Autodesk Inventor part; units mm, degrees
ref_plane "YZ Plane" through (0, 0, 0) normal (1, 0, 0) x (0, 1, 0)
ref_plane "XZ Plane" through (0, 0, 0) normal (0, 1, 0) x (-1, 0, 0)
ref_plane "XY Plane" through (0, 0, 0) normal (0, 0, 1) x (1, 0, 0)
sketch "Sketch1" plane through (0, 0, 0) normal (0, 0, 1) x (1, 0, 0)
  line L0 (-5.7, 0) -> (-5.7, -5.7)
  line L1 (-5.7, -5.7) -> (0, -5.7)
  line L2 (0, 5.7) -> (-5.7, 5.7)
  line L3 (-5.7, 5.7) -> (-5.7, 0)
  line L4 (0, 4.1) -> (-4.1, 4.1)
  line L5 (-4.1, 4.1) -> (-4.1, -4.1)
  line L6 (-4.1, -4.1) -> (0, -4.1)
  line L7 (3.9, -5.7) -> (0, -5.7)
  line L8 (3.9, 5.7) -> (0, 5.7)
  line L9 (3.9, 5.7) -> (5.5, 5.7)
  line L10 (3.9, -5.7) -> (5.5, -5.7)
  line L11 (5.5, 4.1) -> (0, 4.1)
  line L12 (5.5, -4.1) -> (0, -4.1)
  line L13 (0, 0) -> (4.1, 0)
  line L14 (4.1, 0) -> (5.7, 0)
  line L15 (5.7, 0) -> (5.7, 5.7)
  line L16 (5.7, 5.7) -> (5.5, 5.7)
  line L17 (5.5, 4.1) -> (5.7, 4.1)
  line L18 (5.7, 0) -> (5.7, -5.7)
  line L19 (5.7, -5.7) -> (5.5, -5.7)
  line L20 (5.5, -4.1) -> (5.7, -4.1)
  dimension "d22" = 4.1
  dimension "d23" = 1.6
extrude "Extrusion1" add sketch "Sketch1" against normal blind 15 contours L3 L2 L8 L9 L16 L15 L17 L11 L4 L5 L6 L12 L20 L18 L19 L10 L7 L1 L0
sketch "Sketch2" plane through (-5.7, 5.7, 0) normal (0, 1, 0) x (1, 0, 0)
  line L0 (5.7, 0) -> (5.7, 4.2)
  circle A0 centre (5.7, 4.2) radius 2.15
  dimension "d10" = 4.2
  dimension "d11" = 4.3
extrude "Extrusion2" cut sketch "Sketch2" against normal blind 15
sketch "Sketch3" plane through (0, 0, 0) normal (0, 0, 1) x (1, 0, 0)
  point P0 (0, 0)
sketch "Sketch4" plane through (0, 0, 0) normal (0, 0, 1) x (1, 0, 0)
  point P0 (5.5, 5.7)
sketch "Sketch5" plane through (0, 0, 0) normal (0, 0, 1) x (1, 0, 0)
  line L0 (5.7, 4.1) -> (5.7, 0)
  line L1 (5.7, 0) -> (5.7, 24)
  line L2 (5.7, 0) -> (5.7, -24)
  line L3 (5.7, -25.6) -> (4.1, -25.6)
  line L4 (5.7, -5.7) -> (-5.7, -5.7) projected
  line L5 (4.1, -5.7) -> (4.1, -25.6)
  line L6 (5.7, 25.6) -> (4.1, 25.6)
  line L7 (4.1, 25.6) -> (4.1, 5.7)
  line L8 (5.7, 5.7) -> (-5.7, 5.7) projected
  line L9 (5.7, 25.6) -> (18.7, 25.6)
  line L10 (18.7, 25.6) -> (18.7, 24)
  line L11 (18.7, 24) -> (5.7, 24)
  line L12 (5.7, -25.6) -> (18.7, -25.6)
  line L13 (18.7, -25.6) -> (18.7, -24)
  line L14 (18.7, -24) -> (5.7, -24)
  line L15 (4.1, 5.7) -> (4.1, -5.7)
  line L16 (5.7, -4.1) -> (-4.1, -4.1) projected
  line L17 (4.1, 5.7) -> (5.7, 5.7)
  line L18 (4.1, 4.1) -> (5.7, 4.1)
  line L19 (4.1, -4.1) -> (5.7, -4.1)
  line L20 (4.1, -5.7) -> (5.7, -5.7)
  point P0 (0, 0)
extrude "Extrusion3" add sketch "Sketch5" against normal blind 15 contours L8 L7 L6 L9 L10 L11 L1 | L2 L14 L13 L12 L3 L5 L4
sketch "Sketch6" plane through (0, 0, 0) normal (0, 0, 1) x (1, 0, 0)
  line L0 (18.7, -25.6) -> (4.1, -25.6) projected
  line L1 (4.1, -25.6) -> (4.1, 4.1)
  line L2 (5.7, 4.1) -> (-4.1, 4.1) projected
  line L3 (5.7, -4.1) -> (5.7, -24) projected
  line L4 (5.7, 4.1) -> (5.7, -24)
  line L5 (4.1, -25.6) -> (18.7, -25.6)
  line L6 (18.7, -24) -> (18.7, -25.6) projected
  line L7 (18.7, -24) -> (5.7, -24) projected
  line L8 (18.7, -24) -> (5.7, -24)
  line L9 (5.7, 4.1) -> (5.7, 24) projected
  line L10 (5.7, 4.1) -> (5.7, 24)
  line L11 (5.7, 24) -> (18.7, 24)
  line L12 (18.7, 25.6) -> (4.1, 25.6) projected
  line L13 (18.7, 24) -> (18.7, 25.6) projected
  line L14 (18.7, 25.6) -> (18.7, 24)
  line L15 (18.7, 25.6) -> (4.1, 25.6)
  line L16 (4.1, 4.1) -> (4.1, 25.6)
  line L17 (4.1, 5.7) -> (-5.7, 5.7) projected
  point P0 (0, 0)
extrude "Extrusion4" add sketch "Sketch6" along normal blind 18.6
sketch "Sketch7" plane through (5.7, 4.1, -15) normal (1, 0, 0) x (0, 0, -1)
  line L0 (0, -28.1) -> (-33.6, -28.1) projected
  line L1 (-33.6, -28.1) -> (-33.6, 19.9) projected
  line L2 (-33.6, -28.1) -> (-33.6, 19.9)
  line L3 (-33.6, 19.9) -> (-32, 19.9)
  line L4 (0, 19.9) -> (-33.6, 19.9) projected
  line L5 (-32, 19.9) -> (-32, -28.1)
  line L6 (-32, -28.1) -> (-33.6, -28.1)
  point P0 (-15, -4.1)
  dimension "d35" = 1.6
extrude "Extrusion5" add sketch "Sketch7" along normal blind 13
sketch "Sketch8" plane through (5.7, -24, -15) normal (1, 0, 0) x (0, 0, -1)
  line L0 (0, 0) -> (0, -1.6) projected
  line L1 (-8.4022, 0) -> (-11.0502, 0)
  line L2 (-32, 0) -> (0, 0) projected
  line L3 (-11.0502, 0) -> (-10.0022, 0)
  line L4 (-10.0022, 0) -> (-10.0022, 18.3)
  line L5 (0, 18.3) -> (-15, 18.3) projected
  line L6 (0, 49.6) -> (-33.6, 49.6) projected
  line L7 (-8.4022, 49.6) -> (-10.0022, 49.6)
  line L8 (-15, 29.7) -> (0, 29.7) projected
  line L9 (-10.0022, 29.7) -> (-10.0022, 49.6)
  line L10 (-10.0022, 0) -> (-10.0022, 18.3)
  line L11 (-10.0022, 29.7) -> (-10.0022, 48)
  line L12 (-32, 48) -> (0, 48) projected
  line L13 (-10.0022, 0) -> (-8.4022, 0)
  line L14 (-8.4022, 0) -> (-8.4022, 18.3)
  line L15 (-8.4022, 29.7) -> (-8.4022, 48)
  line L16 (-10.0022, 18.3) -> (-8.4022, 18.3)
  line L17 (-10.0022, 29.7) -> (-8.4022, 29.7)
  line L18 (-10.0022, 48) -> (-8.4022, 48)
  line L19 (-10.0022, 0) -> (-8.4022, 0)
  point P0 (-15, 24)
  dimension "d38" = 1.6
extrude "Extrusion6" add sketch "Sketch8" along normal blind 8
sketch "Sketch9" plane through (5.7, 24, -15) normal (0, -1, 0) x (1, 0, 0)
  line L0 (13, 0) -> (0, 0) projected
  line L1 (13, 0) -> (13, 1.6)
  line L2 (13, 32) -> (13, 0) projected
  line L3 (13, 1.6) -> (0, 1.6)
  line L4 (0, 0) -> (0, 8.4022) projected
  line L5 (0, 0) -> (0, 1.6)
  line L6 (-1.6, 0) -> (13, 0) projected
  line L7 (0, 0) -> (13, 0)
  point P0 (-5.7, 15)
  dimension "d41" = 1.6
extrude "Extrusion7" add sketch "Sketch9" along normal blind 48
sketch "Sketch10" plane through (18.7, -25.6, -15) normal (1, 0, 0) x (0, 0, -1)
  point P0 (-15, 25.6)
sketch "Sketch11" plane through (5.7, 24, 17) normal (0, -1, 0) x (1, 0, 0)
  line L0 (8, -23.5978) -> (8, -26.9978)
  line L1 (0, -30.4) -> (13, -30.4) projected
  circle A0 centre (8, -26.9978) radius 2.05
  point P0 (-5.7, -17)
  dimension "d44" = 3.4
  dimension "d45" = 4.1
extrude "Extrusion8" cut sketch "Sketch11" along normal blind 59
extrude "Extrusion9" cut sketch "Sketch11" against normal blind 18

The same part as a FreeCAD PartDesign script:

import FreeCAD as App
import Part
import Sketcher


def add_polygon(sketch, points):
    """Adds a closed chain of lines whose ends are joined by coincident constraints."""
    first, n = sketch.GeometryCount, len(points)
    for a, b in zip(points, points[1:] + points[:1]):
        sketch.addGeometry(Part.LineSegment(App.Vector(*a, 0), App.Vector(*b, 0)), False)
    for i in range(n):
        sketch.addConstraint(Sketcher.Constraint("Coincident", first + i, 2, first + (i + 1) % n, 1))

doc = App.newDocument("Part")
body = doc.addObject("PartDesign::Body", "Body")

# Sketch on XY plane
sketch1 = body.newObject("Sketcher::SketchObject", "Sketch")
sketch1.AttachmentSupport = (doc.getObject("XY_Plane"), [""])
sketch1.MapMode = "FlatFace"
add_polygon(sketch1, [(-5.7, 5.7), (-5.7, -5.7), (5.7, -5.7), (5.7, -4.1), (-4.1, -4.1), (-4.1, 4.1), (5.7, 4.1), (5.7, 5.7)])  # lines 0-7
sketch1.addConstraint([
    Sketcher.Constraint("Vertical", 0),
    Sketcher.Constraint("Horizontal", 1),
    Sketcher.Constraint("Vertical", 2),
    Sketcher.Constraint("Horizontal", 3),
    Sketcher.Constraint("Vertical", 4),
    Sketcher.Constraint("Horizontal", 5),
    Sketcher.Constraint("Vertical", 6),
    Sketcher.Constraint("Horizontal", 7),
    Sketcher.Constraint("Symmetric", 0, 2, 6, 2, -1, 1),
    Sketcher.Constraint("Symmetric", 2, 2, 5, 2, -1),
    Sketcher.Constraint("Equal", 7, 0),
    Sketcher.Constraint("DistanceY", 2, 1, 2, 2, 1.6),
    Sketcher.Constraint("DistanceY", 2, 2, -1, 1, 4.1),
    Sketcher.Constraint("DistanceX", 3, 2, -1, 1, 4.1),
])
pad1 = body.newObject("PartDesign::Pad", "Pad")
pad1.Profile = sketch1
pad1.Length = 15
pad1.Reversed = True

# Sketch on XZ plane
sketch2 = body.newObject("Sketcher::SketchObject", "Sketch001")
sketch2.AttachmentSupport = (doc.getObject("XZ_Plane"), [""])
sketch2.MapMode = "FlatFace"
sketch2.AttachmentOffset = App.Placement(App.Vector(0, 0, -5.7), App.Rotation())
sketch2.addGeometry(Part.Circle(App.Vector(0, -4.2, 0), App.Vector(0, 0, 1), 2.15), False)
sketch2.addConstraint([
    Sketcher.Constraint("PointOnObject", 0, 3, -2),
    Sketcher.Constraint("Diameter", 0, 4.3),
    Sketcher.Constraint("DistanceY", 0, 3, -1, 1, 4.2),
])
pocket1 = body.newObject("PartDesign::Pocket", "Pocket")
pocket1.Profile = sketch2
pocket1.Length = 15
pocket1.Reversed = True

# Sketch on XY plane
sketch3 = body.newObject("Sketcher::SketchObject", "Sketch002")
sketch3.AttachmentSupport = (doc.getObject("XY_Plane"), [""])
sketch3.MapMode = "FlatFace"
add_polygon(sketch3, [(4.1, 5.7), (5.7, 5.7), (5.7, 24), (18.7, 24), (18.7, 25.6), (4.1, 25.6)])  # lines 0-5
add_polygon(sketch3, [(5.7, -24), (5.7, -5.7), (4.1, -5.7), (4.1, -25.6), (18.7, -25.6), (18.7, -24)])  # lines 6-11
sketch3.addConstraint([
    Sketcher.Constraint("Horizontal", 0),
    Sketcher.Constraint("Vertical", 1),
    Sketcher.Constraint("Horizontal", 2),
    Sketcher.Constraint("Vertical", 3),
    Sketcher.Constraint("Horizontal", 4),
    Sketcher.Constraint("Vertical", 5),
    Sketcher.Constraint("Vertical", 6),
    Sketcher.Constraint("Horizontal", 7),
    Sketcher.Constraint("Vertical", 8),
    Sketcher.Constraint("Horizontal", 9),
    Sketcher.Constraint("Vertical", 10),
    Sketcher.Constraint("Horizontal", 11),
    Sketcher.Constraint("Symmetric", 0, 2, 6, 2, -1),
    Sketcher.Constraint("Symmetric", 4, 2, 8, 2, -1),
    Sketcher.Constraint("Symmetric", 2, 2, 10, 2, -1),
    Sketcher.Constraint("Equal", 7, 3),
    Sketcher.Constraint("DistanceX", 2, 1, 2, 2, 13.0),
    Sketcher.Constraint("DistanceX", 0, 1, 0, 2, 1.6),
    Sketcher.Constraint("DistanceY", 1, 1, 1, 2, 18.3),
    Sketcher.Constraint("DistanceY", -1, 1, 1, 2, 24.0),
    Sketcher.Constraint("DistanceX", -1, 1, 0, 2, 5.7),
])
pad2 = body.newObject("PartDesign::Pad", "Pad001")
pad2.Profile = sketch3
pad2.Length = 15
pad2.Reversed = True

# Sketch on XY plane
sketch4 = body.newObject("Sketcher::SketchObject", "Sketch003")
sketch4.AttachmentSupport = (doc.getObject("XY_Plane"), [""])
sketch4.MapMode = "FlatFace"
add_polygon(sketch4, [(4.1, -25.6), (18.7, -25.6), (18.7, -24), (5.7, -24), (5.7, 24), (18.7, 24), (18.7, 25.6), (4.1, 25.6)])  # lines 0-7
sketch4.addConstraint([
    Sketcher.Constraint("Horizontal", 0),
    Sketcher.Constraint("Vertical", 1),
    Sketcher.Constraint("Horizontal", 2),
    Sketcher.Constraint("Vertical", 3),
    Sketcher.Constraint("Horizontal", 4),
    Sketcher.Constraint("Vertical", 5),
    Sketcher.Constraint("Horizontal", 6),
    Sketcher.Constraint("Vertical", 7),
    Sketcher.Constraint("Symmetric", 1, 2, 4, 2, -1),
    Sketcher.Constraint("Equal", 1, 5),
    Sketcher.Constraint("DistanceX", 2, 2, 2, 1, 13.0),
    Sketcher.Constraint("DistanceY", 3, 1, 3, 2, 48.0),
    Sketcher.Constraint("DistanceX", 0, 1, 0, 2, 14.6),
    Sketcher.Constraint("DistanceY", 1, 1, 1, 2, 1.6),
    Sketcher.Constraint("DistanceX", -1, 1, 0, 2, 18.7),
])
pad3 = body.newObject("PartDesign::Pad", "Pad002")
pad3.Profile = sketch4
pad3.Length = 18.6

# Sketch on YZ plane
sketch5 = body.newObject("Sketcher::SketchObject", "Sketch004")
sketch5.AttachmentSupport = (doc.getObject("YZ_Plane"), [""])
sketch5.MapMode = "FlatFace"
sketch5.AttachmentOffset = App.Placement(App.Vector(0, 0, 5.7), App.Rotation())
add_polygon(sketch5, [(-24, 18.6), (-24, 17), (24, 17), (24, 18.6)])  # lines 0-3
sketch5.addConstraint([
    Sketcher.Constraint("Vertical", 0),
    Sketcher.Constraint("Horizontal", 1),
    Sketcher.Constraint("Vertical", 2),
    Sketcher.Constraint("Horizontal", 3),
    Sketcher.Constraint("DistanceY", 0, 2, 0, 1, 1.6),
    Sketcher.Constraint("DistanceX", 1, 1, 1, 2, 48.0),
    Sketcher.Constraint("DistanceX", 0, 2, -1, 1, 24.0),
    Sketcher.Constraint("DistanceY", -1, 1, 0, 2, 17.0),
])
pad4 = body.newObject("PartDesign::Pad", "Pad003")
pad4.Profile = sketch5
pad4.Length = 13

# Sketch on YZ plane
sketch6 = body.newObject("Sketcher::SketchObject", "Sketch005")
sketch6.AttachmentSupport = (doc.getObject("YZ_Plane"), [""])
sketch6.MapMode = "FlatFace"
sketch6.AttachmentOffset = App.Placement(App.Vector(0, 0, 5.7), App.Rotation())
add_polygon(sketch6, [(-24, -4.9978), (-24, -6.5978), (-5.7, -6.5978), (-5.7, -4.9978)])  # lines 0-3
add_polygon(sketch6, [(24, -4.9978), (5.7, -4.9978), (5.7, -6.5978), (24, -6.5978)])  # lines 4-7
sketch6.addConstraint([
    Sketcher.Constraint("Vertical", 0),
    Sketcher.Constraint("Horizontal", 1),
    Sketcher.Constraint("Vertical", 2),
    Sketcher.Constraint("Horizontal", 3),
    Sketcher.Constraint("Horizontal", 4),
    Sketcher.Constraint("Vertical", 5),
    Sketcher.Constraint("Horizontal", 6),
    Sketcher.Constraint("Vertical", 7),
    Sketcher.Constraint("Symmetric", 2, 2, 4, 2, -2),
    Sketcher.Constraint("Symmetric", 0, 2, 6, 2, -2),
    Sketcher.Constraint("DistanceY", 0, 2, 0, 1, 1.6),
    Sketcher.Constraint("DistanceX", 1, 1, 1, 2, 18.3),
    Sketcher.Constraint("DistanceX", 0, 2, -1, 1, 24.0),
    Sketcher.Constraint("DistanceY", 0, 2, -1, 1, 6.5978),
])
pad5 = body.newObject("PartDesign::Pad", "Pad004")
pad5.Profile = sketch6
pad5.Length = 8

# Sketch on XZ plane
sketch7 = body.newObject("Sketcher::SketchObject", "Sketch006")
sketch7.AttachmentSupport = (doc.getObject("XZ_Plane"), [""])
sketch7.MapMode = "FlatFace"
sketch7.AttachmentOffset = App.Placement(App.Vector(0, 0, -24), App.Rotation())
add_polygon(sketch7, [(5.7, -15), (18.7, -15), (18.7, -13.4), (5.7, -13.4)])  # lines 0-3
sketch7.addConstraint([
    Sketcher.Constraint("Horizontal", 0),
    Sketcher.Constraint("Vertical", 1),
    Sketcher.Constraint("Horizontal", 2),
    Sketcher.Constraint("Vertical", 3),
    Sketcher.Constraint("DistanceY", 1, 1, 1, 2, 1.6),
    Sketcher.Constraint("DistanceX", 0, 1, 0, 2, 13.0),
    Sketcher.Constraint("DistanceY", 0, 2, -1, 1, 15.0),
    Sketcher.Constraint("DistanceX", -1, 1, 0, 2, 18.7),
])
pad6 = body.newObject("PartDesign::Pad", "Pad005")
pad6.Profile = sketch7
pad6.Length = 48

# Sketch on XZ plane
sketch8 = body.newObject("Sketcher::SketchObject", "Sketch007")
sketch8.AttachmentSupport = (doc.getObject("XZ_Plane"), [""])
sketch8.MapMode = "FlatFace"
sketch8.AttachmentOffset = App.Placement(App.Vector(0, 0, -24), App.Rotation())
sketch8.addGeometry(Part.Circle(App.Vector(13.7, -9.9978, 0), App.Vector(0, 0, 1), 2.05), False)
sketch8.addConstraint([
    Sketcher.Constraint("Diameter", 0, 4.1),
    Sketcher.Constraint("DistanceX", -1, 1, 0, 3, 13.7),
    Sketcher.Constraint("DistanceY", 0, 3, -1, 1, 9.9978),
])
pocket2 = body.newObject("PartDesign::Pocket", "Pocket001")
pocket2.Profile = sketch8
pocket2.Length = 59
pocket2.Reversed = True

# Sketch on XZ plane
sketch9 = body.newObject("Sketcher::SketchObject", "Sketch008")
sketch9.AttachmentSupport = (doc.getObject("XZ_Plane"), [""])
sketch9.MapMode = "FlatFace"
sketch9.AttachmentOffset = App.Placement(App.Vector(0, 0, -24), App.Rotation())
sketch9.addGeometry(Part.Circle(App.Vector(13.7, -9.9978, 0), App.Vector(0, 0, 1), 2.05), False)
sketch9.addConstraint([
    Sketcher.Constraint("Diameter", 0, 4.1),
    Sketcher.Constraint("DistanceX", -1, 1, 0, 3, 13.7),
    Sketcher.Constraint("DistanceY", 0, 3, -1, 1, 9.9978),
])
pocket3 = body.newObject("PartDesign::Pocket", "Pocket002")
pocket3.Profile = sketch9
pocket3.Length = 18

doc.recompute()
